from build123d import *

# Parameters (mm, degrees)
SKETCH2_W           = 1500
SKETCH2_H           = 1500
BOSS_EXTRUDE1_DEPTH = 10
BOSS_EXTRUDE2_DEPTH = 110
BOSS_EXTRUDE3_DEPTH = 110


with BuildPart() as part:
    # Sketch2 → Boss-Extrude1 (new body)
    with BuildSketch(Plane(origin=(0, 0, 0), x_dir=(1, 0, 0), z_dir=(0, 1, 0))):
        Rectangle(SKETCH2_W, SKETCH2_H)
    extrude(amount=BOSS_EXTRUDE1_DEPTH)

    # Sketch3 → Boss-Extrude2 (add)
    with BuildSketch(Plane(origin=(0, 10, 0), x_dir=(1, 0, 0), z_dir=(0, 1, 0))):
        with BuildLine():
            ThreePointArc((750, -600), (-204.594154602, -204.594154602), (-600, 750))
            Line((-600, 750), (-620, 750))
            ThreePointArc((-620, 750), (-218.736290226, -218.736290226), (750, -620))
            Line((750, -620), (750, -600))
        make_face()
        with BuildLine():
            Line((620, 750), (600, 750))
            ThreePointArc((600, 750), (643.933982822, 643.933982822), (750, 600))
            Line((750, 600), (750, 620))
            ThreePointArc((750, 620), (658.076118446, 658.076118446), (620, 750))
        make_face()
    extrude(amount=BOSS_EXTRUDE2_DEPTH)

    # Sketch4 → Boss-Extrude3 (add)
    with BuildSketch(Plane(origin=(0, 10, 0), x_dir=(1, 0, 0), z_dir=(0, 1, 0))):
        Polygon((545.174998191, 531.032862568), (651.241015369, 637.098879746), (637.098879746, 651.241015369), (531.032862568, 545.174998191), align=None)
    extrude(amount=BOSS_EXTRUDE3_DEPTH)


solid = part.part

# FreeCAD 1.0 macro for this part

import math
import FreeCAD as App
import Part
import Sketcher
Q = App.Units.Quantity

doc = App.newDocument("Part")
body = doc.addObject("PartDesign::Body", "Body")

# Sketch on XZ plane
sketch1 = doc.addObject("Sketcher::SketchObject", "Sketch")
body.addObject(sketch1)
sketch1.AttachmentSupport = (doc.XZ_Plane, [""])
sketch1.MapMode = "FlatFace"
sketch1.addGeometry([
    Part.LineSegment(App.Vector(-750, -750, 0), App.Vector(-750, 750, 0)),
    Part.LineSegment(App.Vector(-750, 750, 0), App.Vector(750, 750, 0)),
    Part.LineSegment(App.Vector(750, 750, 0), App.Vector(750, -750, 0)),
    Part.LineSegment(App.Vector(750, -750, 0), App.Vector(-750, -750, 0)),
], False)
sketch1.addConstraint([
    Sketcher.Constraint("Coincident", 0, 2, 1, 1),
    Sketcher.Constraint("Coincident", 1, 2, 2, 1),
    Sketcher.Constraint("Coincident", 2, 2, 3, 1),
    Sketcher.Constraint("Coincident", 3, 2, 0, 1),
    Sketcher.Constraint("Vertical", 0),
    Sketcher.Constraint("Horizontal", 1),
    Sketcher.Constraint("Vertical", 2),
    Sketcher.Constraint("Horizontal", 3),
    Sketcher.Constraint("Symmetric", 0, 2, 2, 2, -1, 1),
    Sketcher.Constraint("Equal", 3, 0),
    Sketcher.Constraint("DistanceX", 1, 1, 1, 2, 1500.0),
])
pad1 = doc.addObject("PartDesign::Pad", "Pad")
body.addObject(pad1)
pad1.Profile = sketch1
pad1.Length = 10
pad1.Reversed = True

# Sketch on XZ plane
sketch2 = doc.addObject("Sketcher::SketchObject", "Sketch001")
body.addObject(sketch2)
sketch2.AttachmentSupport = (doc.XZ_Plane, [""])
sketch2.MapMode = "FlatFace"
sketch2.AttachmentOffset = App.Placement(App.Vector(0, 0, -10), App.Rotation())
sketch2.addGeometry([
    Part.ArcOfCircle(Part.Circle(App.Vector(750, -750, 0), App.Vector(0, 0, 1), 1350), math.radians(90), math.radians(180)),  # 0
    Part.LineSegment(App.Vector(-600, -750, 0), App.Vector(-620, -750, 0)),  # 1
    Part.ArcOfCircle(Part.Circle(App.Vector(750, -750, 0), App.Vector(0, 0, 1), 1370), math.radians(90), math.radians(180)),  # 2
    Part.LineSegment(App.Vector(750, 620, 0), App.Vector(750, 600, 0)),  # 3
    Part.LineSegment(App.Vector(620, -750, 0), App.Vector(600, -750, 0)),  # 4
    Part.ArcOfCircle(Part.Circle(App.Vector(750, -750, 0), App.Vector(0, 0, 1), 150), math.radians(90), math.radians(180)),  # 5
    Part.LineSegment(App.Vector(750, -600, 0), App.Vector(750, -620, 0)),  # 6
    Part.ArcOfCircle(Part.Circle(App.Vector(750, -750, 0), App.Vector(0, 0, 1), 130), math.radians(90), math.radians(180)),  # 7
], False)
sketch2.addConstraint([
    Sketcher.Constraint("Coincident", 0, 2, 1, 1),
    Sketcher.Constraint("Coincident", 1, 2, 2, 2),
    Sketcher.Constraint("Coincident", 2, 1, 3, 1),
    Sketcher.Constraint("Coincident", 3, 2, 0, 1),
    Sketcher.Constraint("Coincident", 4, 2, 5, 2),
    Sketcher.Constraint("Coincident", 5, 1, 6, 1),
    Sketcher.Constraint("Coincident", 6, 2, 7, 1),
    Sketcher.Constraint("Coincident", 7, 2, 4, 1),
    Sketcher.Constraint("Horizontal", 1),
    Sketcher.Constraint("Vertical", 3),
    Sketcher.Constraint("Horizontal", 4),
    Sketcher.Constraint("Vertical", 6),
    Sketcher.Constraint("Coincident", 2, 3, 0, 3),
    Sketcher.Constraint("Coincident", 5, 3, 0, 3),
    Sketcher.Constraint("Coincident", 7, 3, 0, 3),
    Sketcher.Constraint("Symmetric", 1, 2, 7, 2, -2),
    Sketcher.Constraint("Symmetric", 3, 2, 5, 1, -1),
    Sketcher.Constraint("Equal", 1, 4),
    Sketcher.Constraint("Radius", 0, 1350.0),
    Sketcher.Constraint("Radius", 2, 1370.0),
    Sketcher.Constraint("Radius", 5, 150.0),
    Sketcher.Constraint("DistanceY", 1, 2, -1, 1, 750.0),
    Sketcher.Constraint("DistanceX", -1, 1, 3, 2, 750.0),
])
pad2 = doc.addObject("PartDesign::Pad", "Pad001")
body.addObject(pad2)
pad2.Profile = sketch2
pad2.Length = 110
pad2.Reversed = True

# Sketch on XZ plane
sketch3 = doc.addObject("Sketcher::SketchObject", "Sketch002")
body.addObject(sketch3)
sketch3.AttachmentSupport = (doc.XZ_Plane, [""])
sketch3.MapMode = "FlatFace"
sketch3.AttachmentOffset = App.Placement(App.Vector(0, 0, -10), App.Rotation())
sketch3.addGeometry([
    Part.LineSegment(App.Vector(545, -531, 0), App.Vector(651, -637, 0)),
    Part.LineSegment(App.Vector(651, -637, 0), App.Vector(637, -651, 0)),
    Part.LineSegment(App.Vector(637, -651, 0), App.Vector(531, -545, 0)),
    Part.LineSegment(App.Vector(531, -545, 0), App.Vector(545, -531, 0)),
], False)
sketch3.addConstraint([
    Sketcher.Constraint("Coincident", 0, 2, 1, 1),
    Sketcher.Constraint("Coincident", 1, 2, 2, 1),
    Sketcher.Constraint("Coincident", 2, 2, 3, 1),
    Sketcher.Constraint("Coincident", 3, 2, 0, 1),
    Sketcher.Constraint("Perpendicular", 0, 1),
    Sketcher.Constraint("Perpendicular", 1, 2),
    Sketcher.Constraint("Perpendicular", 2, 3),
    Sketcher.Constraint("Angle", 0, Q("-45 deg")),
    Sketcher.Constraint("Distance", 0, 150.0),
    Sketcher.Constraint("Distance", 1, 20.0),
    Sketcher.Constraint("DistanceY", 2, 2, -1, 1, 545.174998),
    Sketcher.Constraint("DistanceX", -1, 1, 3, 2, 545.174998),
])
pad3 = doc.addObject("PartDesign::Pad", "Pad002")
body.addObject(pad3)
pad3.Profile = sketch3
pad3.Length = 110
pad3.Reversed = True

doc.recompute()
